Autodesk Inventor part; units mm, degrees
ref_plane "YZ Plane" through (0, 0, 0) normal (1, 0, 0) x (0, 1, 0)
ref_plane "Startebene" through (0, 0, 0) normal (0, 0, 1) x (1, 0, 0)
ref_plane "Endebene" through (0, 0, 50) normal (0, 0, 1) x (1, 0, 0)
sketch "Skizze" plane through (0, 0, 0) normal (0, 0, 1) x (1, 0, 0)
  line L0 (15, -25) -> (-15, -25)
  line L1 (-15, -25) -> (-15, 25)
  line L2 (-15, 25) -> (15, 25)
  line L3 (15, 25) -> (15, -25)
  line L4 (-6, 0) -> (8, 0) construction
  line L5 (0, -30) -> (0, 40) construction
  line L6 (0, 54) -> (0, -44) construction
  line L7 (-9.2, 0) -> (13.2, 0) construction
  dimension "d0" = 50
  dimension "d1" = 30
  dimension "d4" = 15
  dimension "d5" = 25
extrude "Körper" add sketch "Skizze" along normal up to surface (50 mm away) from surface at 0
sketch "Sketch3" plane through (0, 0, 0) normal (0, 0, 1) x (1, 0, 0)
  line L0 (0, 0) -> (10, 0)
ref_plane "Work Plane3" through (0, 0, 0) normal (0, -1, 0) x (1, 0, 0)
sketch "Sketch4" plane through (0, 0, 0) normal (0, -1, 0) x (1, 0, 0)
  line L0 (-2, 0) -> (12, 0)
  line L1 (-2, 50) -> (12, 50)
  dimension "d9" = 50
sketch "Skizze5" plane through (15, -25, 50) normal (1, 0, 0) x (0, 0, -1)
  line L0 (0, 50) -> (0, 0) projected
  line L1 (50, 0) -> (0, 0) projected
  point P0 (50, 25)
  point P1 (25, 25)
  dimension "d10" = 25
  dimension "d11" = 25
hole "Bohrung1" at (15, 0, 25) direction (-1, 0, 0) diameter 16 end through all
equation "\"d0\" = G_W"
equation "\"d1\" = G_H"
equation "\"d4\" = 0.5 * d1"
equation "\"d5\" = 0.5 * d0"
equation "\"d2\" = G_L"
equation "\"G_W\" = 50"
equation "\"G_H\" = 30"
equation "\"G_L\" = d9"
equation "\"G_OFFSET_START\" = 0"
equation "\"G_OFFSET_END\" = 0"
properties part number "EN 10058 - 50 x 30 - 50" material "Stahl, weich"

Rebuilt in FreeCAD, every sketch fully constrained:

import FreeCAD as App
import Part
import Sketcher
from FreeCAD import Vector


def add_polygon(sketch, points):
    """Adds a closed chain of lines whose ends are joined by coincident constraints."""
    first, n = sketch.GeometryCount, len(points)
    for a, b in zip(points, points[1:] + points[:1]):
        sketch.addGeometry(Part.LineSegment(App.Vector(*a, 0), App.Vector(*b, 0)), False)
    for i in range(n):
        sketch.addConstraint(Sketcher.Constraint("Coincident", first + i, 2, first + (i + 1) % n, 1))

doc = App.newDocument("Part")
params = doc.addObject("Spreadsheet::Sheet", "Params")
for row, (alias, value) in enumerate([
    ("sketch1_width", "30 mm"),
    ("sketch1_height", "50 mm"),
    ("pad1_length", "50 mm"),
    ("sketch2_diameter", "16 mm"),
    ("hole_diameter", "16 mm"),
], start=1):
    params.set(f"A{row}", alias)
    params.set(f"B{row}", "=" + value)
    params.setAlias(f"B{row}", alias)

body = doc.addObject("PartDesign::Body", "Body")

# Sketch on XY plane
sketch1 = doc.addObject("Sketcher::SketchObject", "Sketch")
body.addObject(sketch1)
sketch1.AttachmentSupport = (doc.XY_Plane, [""])
sketch1.MapMode = "FlatFace"
add_polygon(sketch1, [(-15, -25), (15, -25), (15, 25), (-15, 25)])  # lines 0-3
sketch1.addConstraint([
    Sketcher.Constraint("Horizontal", 0),
    Sketcher.Constraint("Vertical", 1),
    Sketcher.Constraint("Horizontal", 2),
    Sketcher.Constraint("Vertical", 3),
    Sketcher.Constraint("Symmetric", 0, 2, 2, 2, -1, 1),
    Sketcher.Constraint("DistanceX", 0, 1, 0, 2, 30.0),
    Sketcher.Constraint("DistanceY", 1, 1, 1, 2, 50.0),
])
sketch1.setExpression("Constraints[9]", "Params.sketch1_width")
sketch1.setExpression("Constraints[10]", "Params.sketch1_height")
pad1 = doc.addObject("PartDesign::Pad", "Pad")
body.addObject(pad1)
pad1.Profile = sketch1
pad1.setExpression("Length", "Params.pad1_length")

# Sketch on YZ plane
sketch2 = doc.addObject("Sketcher::SketchObject", "Sketch001")
body.addObject(sketch2)
sketch2.AttachmentSupport = (doc.YZ_Plane, [""])
sketch2.MapMode = "FlatFace"
sketch2.AttachmentOffset = App.Placement(Vector(0, 0, 15), App.Rotation())
sketch2.addGeometry(Part.Circle(Vector(0, 25, 0), Vector(0, 0, 1), 8), False)
sketch2.addConstraint([
    Sketcher.Constraint("PointOnObject", 0, 3, -2),
    Sketcher.Constraint("Diameter", 0, 16.0),
    Sketcher.Constraint("DistanceY", -1, 1, 0, 3, 25.0),
])
sketch2.setExpression("Constraints[1]", "Params.sketch2_diameter")
doc.recompute()
hole = doc.addObject("PartDesign::Hole", "Hole")
body.addObject(hole)
hole.Profile = sketch2
hole.ThreadType = "None"
hole.setExpression("Diameter", "Params.hole_diameter")
hole.DepthType = "ThroughAll"

doc.recompute()
